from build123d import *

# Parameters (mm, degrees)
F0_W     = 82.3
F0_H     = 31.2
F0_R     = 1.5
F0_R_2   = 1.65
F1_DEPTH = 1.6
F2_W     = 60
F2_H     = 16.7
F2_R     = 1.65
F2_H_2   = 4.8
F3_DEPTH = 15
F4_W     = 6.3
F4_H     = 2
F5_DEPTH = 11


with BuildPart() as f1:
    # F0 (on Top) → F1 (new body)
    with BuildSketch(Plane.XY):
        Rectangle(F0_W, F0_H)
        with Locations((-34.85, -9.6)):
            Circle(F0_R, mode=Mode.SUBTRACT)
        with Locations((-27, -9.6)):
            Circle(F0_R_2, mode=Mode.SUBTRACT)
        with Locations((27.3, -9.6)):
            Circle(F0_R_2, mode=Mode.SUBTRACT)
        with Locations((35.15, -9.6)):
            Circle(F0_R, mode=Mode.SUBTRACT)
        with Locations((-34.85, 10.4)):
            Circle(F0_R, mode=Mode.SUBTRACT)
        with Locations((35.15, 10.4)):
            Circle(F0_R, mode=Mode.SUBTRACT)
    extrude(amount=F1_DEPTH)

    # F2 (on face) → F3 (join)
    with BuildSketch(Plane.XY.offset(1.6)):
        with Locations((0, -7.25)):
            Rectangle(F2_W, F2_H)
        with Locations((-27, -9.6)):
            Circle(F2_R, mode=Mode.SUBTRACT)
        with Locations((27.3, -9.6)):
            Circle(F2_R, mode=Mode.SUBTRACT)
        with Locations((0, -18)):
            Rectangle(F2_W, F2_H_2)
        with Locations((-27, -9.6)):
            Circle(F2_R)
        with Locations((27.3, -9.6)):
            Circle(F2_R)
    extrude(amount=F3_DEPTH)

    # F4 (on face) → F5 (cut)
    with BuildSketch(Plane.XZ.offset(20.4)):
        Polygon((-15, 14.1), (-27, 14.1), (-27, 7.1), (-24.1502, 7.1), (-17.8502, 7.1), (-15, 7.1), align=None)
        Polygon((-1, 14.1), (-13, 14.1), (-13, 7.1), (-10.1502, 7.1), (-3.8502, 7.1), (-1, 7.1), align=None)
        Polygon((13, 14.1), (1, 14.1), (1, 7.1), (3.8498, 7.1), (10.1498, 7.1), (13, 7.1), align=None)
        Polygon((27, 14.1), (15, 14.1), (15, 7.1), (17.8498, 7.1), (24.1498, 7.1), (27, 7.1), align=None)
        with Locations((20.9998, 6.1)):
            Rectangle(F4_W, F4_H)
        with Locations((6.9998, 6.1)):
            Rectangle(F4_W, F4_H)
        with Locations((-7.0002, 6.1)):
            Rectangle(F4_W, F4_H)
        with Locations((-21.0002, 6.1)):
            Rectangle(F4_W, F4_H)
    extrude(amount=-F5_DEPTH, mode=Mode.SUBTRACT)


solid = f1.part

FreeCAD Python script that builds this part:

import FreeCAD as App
import Part
import Sketcher


def add_polygon(sketch, points):
    """Adds a closed chain of lines whose ends are joined by coincident constraints."""
    first, n = sketch.GeometryCount, len(points)
    for a, b in zip(points, points[1:] + points[:1]):
        sketch.addGeometry(Part.LineSegment(App.Vector(*a, 0), App.Vector(*b, 0)), False)
    for i in range(n):
        sketch.addConstraint(Sketcher.Constraint("Coincident", first + i, 2, first + (i + 1) % n, 1))

doc = App.newDocument("Part")
body = doc.addObject("PartDesign::Body", "Body")

sketch1 = doc.addObject("Sketcher::SketchObject", "Sketch")
body.addObject(sketch1)
sketch1.AttachmentSupport = (doc.XY_Plane, [""])
sketch1.MapMode = "FlatFace"
add_polygon(sketch1, [(-41.1, 15.6), (-41.1, -15.6), (41.1, -15.6), (41.1, 15.6)])
sketch1.addGeometry(Part.Circle(App.Vector(-34.9, -9.6, 0), App.Vector(0, 0, 1), 1.5), False)
sketch1.addGeometry(Part.Circle(App.Vector(-27, -9.6, 0), App.Vector(0, 0, 1), 1.6), False)
sketch1.addGeometry(Part.Circle(App.Vector(27.3, -9.6, 0), App.Vector(0, 0, 1), 1.6), False)
sketch1.addGeometry(Part.Circle(App.Vector(35.1, -9.6, 0), App.Vector(0, 0, 1), 1.5), False)
sketch1.addGeometry(Part.Circle(App.Vector(-34.9, 10.4, 0), App.Vector(0, 0, 1), 1.5), False)
sketch1.addGeometry(Part.Circle(App.Vector(35.1, 10.4, 0), App.Vector(0, 0, 1), 1.5), False)
sketch1.addConstraint(Sketcher.Constraint("Vertical", 0))
sketch1.addConstraint(Sketcher.Constraint("Horizontal", 1))
sketch1.addConstraint(Sketcher.Constraint("Vertical", 2))
sketch1.addConstraint(Sketcher.Constraint("Horizontal", 3))
sketch1.addConstraint(Sketcher.Constraint("Equal", 5, 6))
sketch1.addConstraint(Sketcher.Constraint("Equal", 4, 7))
sketch1.addConstraint(Sketcher.Constraint("Equal", 7, 8))
sketch1.addConstraint(Sketcher.Constraint("Equal", 8, 9))
sketch1.addConstraint(Sketcher.Constraint("Symmetric", 0, 2, 2, 2, -1, 1))
sketch1.addConstraint(Sketcher.Constraint("Horizontal", 4, 3, 5, 3))
sketch1.addConstraint(Sketcher.Constraint("Horizontal", 5, 3, 6, 3))
sketch1.addConstraint(Sketcher.Constraint("Horizontal", 6, 3, 7, 3))
sketch1.addConstraint(Sketcher.Constraint("Horizontal", 8, 3, 9, 3))
sketch1.addConstraint(Sketcher.Constraint("Vertical", 4, 3, 8, 3))
sketch1.addConstraint(Sketcher.Constraint("Vertical", 7, 3, 9, 3))
sketch1.addConstraint(Sketcher.Constraint("Diameter", 4, 3.0))
sketch1.addConstraint(Sketcher.Constraint("Diameter", 5, 3.3))
sketch1.addConstraint(Sketcher.Constraint("DistanceX", 1, 1, 1, 2, 82.3))
sketch1.addConstraint(Sketcher.Constraint("DistanceY", 0, 2, 0, 1, 31.2))
sketch1.addConstraint(Sketcher.Constraint("DistanceX", 5, 3, -1, 1, 27.0))
sketch1.addConstraint(Sketcher.Constraint("DistanceX", 4, 3, 7, 3, 70.0))
sketch1.addConstraint(Sketcher.Constraint("DistanceY", 4, 3, 8, 3, 20.0))
sketch1.addConstraint(Sketcher.Constraint("DistanceY", 0, 2, 4, 3, 6.0))
sketch1.addConstraint(Sketcher.Constraint("DistanceX", 7, 3, 1, 2, 6.0))
sketch1.addConstraint(Sketcher.Constraint("DistanceX", -1, 1, 6, 3, 27.3))
pad1 = doc.addObject("PartDesign::Pad", "Pad")
body.addObject(pad1)
pad1.Profile = sketch1
pad1.Length = 1.6

sketch2 = doc.addObject("Sketcher::SketchObject", "Sketch001")
body.addObject(sketch2)
sketch2.AttachmentSupport = (doc.XY_Plane, [""])
sketch2.MapMode = "FlatFace"
sketch2.AttachmentOffset = App.Placement(App.Vector(0, 0, 1.6), App.Rotation())
add_polygon(sketch2, [(-30, 1), (-30, -20), (30, -20), (30, 1)])
sketch2.addConstraint(Sketcher.Constraint("Vertical", 0))
sketch2.addConstraint(Sketcher.Constraint("Horizontal", 1))
sketch2.addConstraint(Sketcher.Constraint("Vertical", 2))
sketch2.addConstraint(Sketcher.Constraint("Horizontal", 3))
sketch2.addConstraint(Sketcher.Constraint("DistanceX", 1, 1, 1, 2, 60.0))
sketch2.addConstraint(Sketcher.Constraint("DistanceY", 0, 2, 0, 1, 21.5))
sketch2.addConstraint(Sketcher.Constraint("DistanceX", 0, 2, -1, 1, 30.0))
sketch2.addConstraint(Sketcher.Constraint("DistanceY", 0, 2, -1, 1, 20.4))
pad2 = doc.addObject("PartDesign::Pad", "Pad001")
body.addObject(pad2)
pad2.Profile = sketch2
pad2.Length = 15

sketch3 = doc.addObject("Sketcher::SketchObject", "Sketch002")
body.addObject(sketch3)
sketch3.AttachmentSupport = (doc.XZ_Plane, [""])
sketch3.MapMode = "FlatFace"
sketch3.AttachmentOffset = App.Placement(App.Vector(0, 0, 20.4), App.Rotation())
add_polygon(sketch3, [(-15, 14.1), (-27, 14.1), (-27, 7.1), (-24.2, 7.1), (-24.2, 5.1), (-17.9, 5.1), (-17.9, 7.1), (-15, 7.1)])
add_polygon(sketch3, [(-1, 14.1), (-13, 14.1), (-13, 7.1), (-10.2, 7.1), (-10.2, 5.1), (-3.9, 5.1), (-3.9, 7.1), (-1, 7.1)])
add_polygon(sketch3, [(13, 14.1), (1, 14.1), (1, 7.1), (3.8, 7.1), (3.8, 5.1), (10.1, 5.1), (10.1, 7.1), (13, 7.1)])
add_polygon(sketch3, [(27, 14.1), (15, 14.1), (15, 7.1), (17.8, 7.1), (17.8, 5.1), (24.1, 5.1), (24.1, 7.1), (27, 7.1)])
sketch3.addConstraint(Sketcher.Constraint("Horizontal", 0))
sketch3.addConstraint(Sketcher.Constraint("Vertical", 1))
sketch3.addConstraint(Sketcher.Constraint("Horizontal", 2))
sketch3.addConstraint(Sketcher.Constraint("Vertical", 3))
sketch3.addConstraint(Sketcher.Constraint("Horizontal", 4))
sketch3.addConstraint(Sketcher.Constraint("Vertical", 5))
sketch3.addConstraint(Sketcher.Constraint("Horizontal", 6))
sketch3.addConstraint(Sketcher.Constraint("Vertical", 7))
sketch3.addConstraint(Sketcher.Constraint("Horizontal", 8))
sketch3.addConstraint(Sketcher.Constraint("Vertical", 9))
sketch3.addConstraint(Sketcher.Constraint("Horizontal", 10))
sketch3.addConstraint(Sketcher.Constraint("Vertical", 11))
sketch3.addConstraint(Sketcher.Constraint("Horizontal", 12))
sketch3.addConstraint(Sketcher.Constraint("Vertical", 13))
sketch3.addConstraint(Sketcher.Constraint("Horizontal", 14))
sketch3.addConstraint(Sketcher.Constraint("Vertical", 15))
sketch3.addConstraint(Sketcher.Constraint("Horizontal", 16))
sketch3.addConstraint(Sketcher.Constraint("Vertical", 17))
sketch3.addConstraint(Sketcher.Constraint("Horizontal", 18))
sketch3.addConstraint(Sketcher.Constraint("Vertical", 19))
sketch3.addConstraint(Sketcher.Constraint("Horizontal", 20))
sketch3.addConstraint(Sketcher.Constraint("Vertical", 21))
sketch3.addConstraint(Sketcher.Constraint("Horizontal", 22))
sketch3.addConstraint(Sketcher.Constraint("Vertical", 23))
sketch3.addConstraint(Sketcher.Constraint("Horizontal", 24))
sketch3.addConstraint(Sketcher.Constraint("Vertical", 25))
sketch3.addConstraint(Sketcher.Constraint("Horizontal", 26))
sketch3.addConstraint(Sketcher.Constraint("Vertical", 27))
sketch3.addConstraint(Sketcher.Constraint("Horizontal", 28))
sketch3.addConstraint(Sketcher.Constraint("Vertical", 29))
sketch3.addConstraint(Sketcher.Constraint("Horizontal", 30))
sketch3.addConstraint(Sketcher.Constraint("Vertical", 31))
sketch3.addConstraint(Sketcher.Constraint("Symmetric", 15, 2, 16, 2, -2))
sketch3.addConstraint(Sketcher.Constraint("Symmetric", 9, 2, 22, 2, -2))
sketch3.addConstraint(Sketcher.Constraint("Symmetric", 7, 2, 24, 2, -2))
sketch3.addConstraint(Sketcher.Constraint("Symmetric", 1, 2, 30, 2, -2))
sketch3.addConstraint(Sketcher.Constraint("Horizontal", 2, 2, 5, 2))
sketch3.addConstraint(Sketcher.Constraint("Horizontal", 7, 2, 8, 2))
sketch3.addConstraint(Sketcher.Constraint("Horizontal", 6, 2, 9, 2))
sketch3.addConstraint(Sketcher.Constraint("Horizontal", 4, 2, 11, 2))
sketch3.addConstraint(Sketcher.Constraint("Horizontal", 10, 2, 13, 2))
sketch3.addConstraint(Sketcher.Constraint("Horizontal", 14, 2, 17, 2))
sketch3.addConstraint(Sketcher.Constraint("Horizontal", 12, 2, 19, 2))
sketch3.addConstraint(Sketcher.Constraint("Horizontal", 22, 2, 25, 2))
sketch3.addConstraint(Sketcher.Constraint("Horizontal", 20, 2, 27, 2))
sketch3.addConstraint(Sketcher.Constraint("Equal", 0, 8))
sketch3.addConstraint(Sketcher.Constraint("Equal", 2, 10))
sketch3.addConstraint(Sketcher.Constraint("Equal", 4, 12))
sketch3.addConstraint(Sketcher.Constraint("Equal", 10, 18))
sketch3.addConstraint(Sketcher.Constraint("Equal", 12, 20))
sketch3.addConstraint(Sketcher.Constraint("Equal", 18, 26))
sketch3.addConstraint(Sketcher.Constraint("Equal", 20, 28))
sketch3.addConstraint(Sketcher.Constraint("DistanceX", 0, 2, 0, 1, 12.0))
sketch3.addConstraint(Sketcher.Constraint("DistanceY", 1, 2, 1, 1, 7.0))
sketch3.addConstraint(Sketcher.Constraint("DistanceY", 3, 2, 3, 1, 2.0))
sketch3.addConstraint(Sketcher.Constraint("DistanceX", 4, 1, 4, 2, 6.3))
sketch3.addConstraint(Sketcher.Constraint("DistanceX", 0, 2, -1, 1, 27.0))
sketch3.addConstraint(Sketcher.Constraint("DistanceX", 8, 2, -1, 1, 13.0))
sketch3.addConstraint(Sketcher.Constraint("DistanceY", -1, 1, 0, 2, 14.1))
sketch3.addConstraint(Sketcher.Constraint("DistanceX", 2, 1, 2, 2, 2.8498))
pocket1 = doc.addObject("PartDesign::Pocket", "Pocket")
body.addObject(pocket1)
pocket1.Profile = sketch3
pocket1.Length = 11

doc.recompute()
